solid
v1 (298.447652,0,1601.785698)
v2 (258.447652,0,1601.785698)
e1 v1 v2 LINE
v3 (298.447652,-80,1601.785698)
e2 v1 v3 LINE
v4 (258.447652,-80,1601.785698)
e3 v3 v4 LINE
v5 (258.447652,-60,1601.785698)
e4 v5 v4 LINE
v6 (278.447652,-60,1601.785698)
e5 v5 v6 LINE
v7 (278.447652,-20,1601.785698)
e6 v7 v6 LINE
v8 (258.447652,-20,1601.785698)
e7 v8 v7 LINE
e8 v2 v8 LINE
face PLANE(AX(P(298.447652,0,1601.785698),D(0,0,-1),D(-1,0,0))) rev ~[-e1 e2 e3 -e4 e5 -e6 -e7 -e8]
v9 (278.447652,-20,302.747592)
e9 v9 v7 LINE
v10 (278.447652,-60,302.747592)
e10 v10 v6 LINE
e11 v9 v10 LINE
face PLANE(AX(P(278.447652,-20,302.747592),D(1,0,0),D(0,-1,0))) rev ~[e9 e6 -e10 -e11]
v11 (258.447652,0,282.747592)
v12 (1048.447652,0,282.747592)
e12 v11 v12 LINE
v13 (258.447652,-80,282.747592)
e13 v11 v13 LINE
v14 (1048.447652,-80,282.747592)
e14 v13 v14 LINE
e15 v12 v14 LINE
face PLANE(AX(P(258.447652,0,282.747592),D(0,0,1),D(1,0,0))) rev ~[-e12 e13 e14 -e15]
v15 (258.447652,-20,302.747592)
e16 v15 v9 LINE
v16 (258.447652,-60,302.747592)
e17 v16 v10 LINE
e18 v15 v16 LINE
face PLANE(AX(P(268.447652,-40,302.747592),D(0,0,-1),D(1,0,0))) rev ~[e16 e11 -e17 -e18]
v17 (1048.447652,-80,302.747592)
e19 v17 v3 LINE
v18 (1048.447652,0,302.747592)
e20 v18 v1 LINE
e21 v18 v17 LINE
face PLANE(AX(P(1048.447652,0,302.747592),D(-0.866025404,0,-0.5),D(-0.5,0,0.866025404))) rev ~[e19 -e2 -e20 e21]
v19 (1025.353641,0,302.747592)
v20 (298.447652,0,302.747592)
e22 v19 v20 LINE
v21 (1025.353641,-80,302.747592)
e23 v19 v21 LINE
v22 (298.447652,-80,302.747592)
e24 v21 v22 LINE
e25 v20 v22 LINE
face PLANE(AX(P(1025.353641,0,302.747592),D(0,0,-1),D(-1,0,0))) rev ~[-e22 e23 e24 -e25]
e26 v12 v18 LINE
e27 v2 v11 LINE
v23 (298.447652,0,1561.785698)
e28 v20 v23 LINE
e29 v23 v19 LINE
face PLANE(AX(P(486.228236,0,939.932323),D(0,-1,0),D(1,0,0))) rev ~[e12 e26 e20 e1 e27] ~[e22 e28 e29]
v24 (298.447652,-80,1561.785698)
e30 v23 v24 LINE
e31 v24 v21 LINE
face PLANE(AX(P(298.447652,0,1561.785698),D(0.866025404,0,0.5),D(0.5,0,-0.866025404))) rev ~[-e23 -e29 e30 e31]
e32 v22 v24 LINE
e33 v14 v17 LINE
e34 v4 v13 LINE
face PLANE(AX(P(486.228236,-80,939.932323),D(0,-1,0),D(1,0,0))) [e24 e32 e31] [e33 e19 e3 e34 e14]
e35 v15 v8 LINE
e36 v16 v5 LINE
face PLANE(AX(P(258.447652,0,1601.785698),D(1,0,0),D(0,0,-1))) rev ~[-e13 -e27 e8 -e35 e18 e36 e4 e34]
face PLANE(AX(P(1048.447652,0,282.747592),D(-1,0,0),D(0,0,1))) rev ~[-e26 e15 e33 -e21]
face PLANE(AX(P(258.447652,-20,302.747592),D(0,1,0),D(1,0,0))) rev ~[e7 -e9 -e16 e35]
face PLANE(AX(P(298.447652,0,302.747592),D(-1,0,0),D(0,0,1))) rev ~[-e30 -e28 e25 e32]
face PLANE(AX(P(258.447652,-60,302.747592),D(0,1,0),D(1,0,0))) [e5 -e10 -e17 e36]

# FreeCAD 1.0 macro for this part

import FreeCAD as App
import Part
import Sketcher
from FreeCAD import Vector
Q = App.Units.Quantity

doc = App.newDocument("Part")
body = doc.addObject("PartDesign::Body", "Body")

# Sketch on XZ plane
sketch1 = doc.addObject("Sketcher::SketchObject", "Sketch")
body.addObject(sketch1)
sketch1.AttachmentSupport = (doc.XZ_Plane, [""])
sketch1.MapMode = "FlatFace"
sketch1.addGeometry([
    Part.LineSegment(Vector(298.447652, 1601.785698, 0), Vector(258.447652, 1601.785698, 0)),  # 0
    Part.LineSegment(Vector(258.447652, 1601.785698, 0), Vector(258.447652, 282.747592, 0)),  # 1
    Part.LineSegment(Vector(258.447652, 282.747592, 0), Vector(1048.447652, 282.747592, 0)),  # 2
    Part.LineSegment(Vector(1048.447652, 282.747592, 0), Vector(1048.447652, 302.747592, 0)),  # 3
    Part.LineSegment(Vector(1048.447652, 302.747592, 0), Vector(298.447652, 1601.785698, 0)),  # 4
    Part.LineSegment(Vector(298.447652, 302.747592, 0), Vector(298.447652, 1561.785698, 0)),  # 5
    Part.LineSegment(Vector(298.447652, 1561.785698, 0), Vector(1025.353641, 302.747592, 0)),  # 6
    Part.LineSegment(Vector(1025.353641, 302.747592, 0), Vector(298.447652, 302.747592, 0)),  # 7
], False)
sketch1.addConstraint([
    Sketcher.Constraint("Coincident", 0, 2, 1, 1),
    Sketcher.Constraint("Coincident", 1, 2, 2, 1),
    Sketcher.Constraint("Coincident", 2, 2, 3, 1),
    Sketcher.Constraint("Coincident", 3, 2, 4, 1),
    Sketcher.Constraint("Coincident", 4, 2, 0, 1),
    Sketcher.Constraint("Coincident", 5, 2, 6, 1),
    Sketcher.Constraint("Coincident", 6, 2, 7, 1),
    Sketcher.Constraint("Coincident", 7, 2, 5, 1),
    Sketcher.Constraint("Horizontal", 0),
    Sketcher.Constraint("Vertical", 1),
    Sketcher.Constraint("Horizontal", 2),
    Sketcher.Constraint("Vertical", 3),
    Sketcher.Constraint("Vertical", 5),
    Sketcher.Constraint("Horizontal", 7),
    Sketcher.Constraint("Parallel", 4, 6),
    Sketcher.Constraint("Horizontal", 3, 2, 6, 2),
    Sketcher.Constraint("Vertical", 4, 2, 5, 2),
    Sketcher.Constraint("DistanceX", 0, 2, 0, 1, Q("40 mm")),
    Sketcher.Constraint("DistanceX", 2, 1, 2, 2, Q("790 mm")),
    Sketcher.Constraint("DistanceY", 3, 1, 3, 2, Q("20 mm")),
    Sketcher.Constraint("Angle", 4, Q("120 deg")),
    Sketcher.Constraint("DistanceY", 5, 2, 4, 2, Q("40 mm")),
    Sketcher.Constraint("DistanceY", -1, 1, 0, 2, Q("1601.785698 mm")),
    Sketcher.Constraint("DistanceX", -1, 1, 6, 2, Q("1025.353641 mm")),
])
pad1 = doc.addObject("PartDesign::Pad", "Pad")
body.addObject(pad1)
pad1.Profile = sketch1
pad1.Length = 80

# Sketch on XY plane
sketch2 = doc.addObject("Sketcher::SketchObject", "Sketch001")
body.addObject(sketch2)
sketch2.AttachmentSupport = (doc.XY_Plane, [""])
sketch2.MapMode = "FlatFace"
sketch2.AttachmentOffset = App.Placement(Vector(0, 0, 302.747592), App.Rotation())
sketch2.addGeometry([
    Part.LineSegment(Vector(258.447652, -60, 0), Vector(258.447652, -20, 0)),
    Part.LineSegment(Vector(258.447652, -20, 0), Vector(278.447652, -20, 0)),
    Part.LineSegment(Vector(278.447652, -20, 0), Vector(278.447652, -60, 0)),
    Part.LineSegment(Vector(278.447652, -60, 0), Vector(258.447652, -60, 0)),
], False)
sketch2.addConstraint([
    Sketcher.Constraint("Coincident", 0, 2, 1, 1),
    Sketcher.Constraint("Coincident", 1, 2, 2, 1),
    Sketcher.Constraint("Coincident", 2, 2, 3, 1),
    Sketcher.Constraint("Coincident", 3, 2, 0, 1),
    Sketcher.Constraint("Vertical", 0),
    Sketcher.Constraint("Horizontal", 1),
    Sketcher.Constraint("Vertical", 2),
    Sketcher.Constraint("Horizontal", 3),
    Sketcher.Constraint("DistanceX", 1, 1, 1, 2, Q("20 mm")),
    Sketcher.Constraint("DistanceY", 0, 1, 0, 2, Q("40 mm")),
    Sketcher.Constraint("DistanceY", 0, 2, -1, 1, Q("20 mm")),
    Sketcher.Constraint("DistanceX", -1, 1, 0, 2, Q("258.447652 mm")),
])
pocket1 = doc.addObject("PartDesign::Pocket", "Pocket")
body.addObject(pocket1)
pocket1.Profile = sketch2
pocket1.Length = 1299.039106
pocket1.Reversed = True

doc.recompute()
